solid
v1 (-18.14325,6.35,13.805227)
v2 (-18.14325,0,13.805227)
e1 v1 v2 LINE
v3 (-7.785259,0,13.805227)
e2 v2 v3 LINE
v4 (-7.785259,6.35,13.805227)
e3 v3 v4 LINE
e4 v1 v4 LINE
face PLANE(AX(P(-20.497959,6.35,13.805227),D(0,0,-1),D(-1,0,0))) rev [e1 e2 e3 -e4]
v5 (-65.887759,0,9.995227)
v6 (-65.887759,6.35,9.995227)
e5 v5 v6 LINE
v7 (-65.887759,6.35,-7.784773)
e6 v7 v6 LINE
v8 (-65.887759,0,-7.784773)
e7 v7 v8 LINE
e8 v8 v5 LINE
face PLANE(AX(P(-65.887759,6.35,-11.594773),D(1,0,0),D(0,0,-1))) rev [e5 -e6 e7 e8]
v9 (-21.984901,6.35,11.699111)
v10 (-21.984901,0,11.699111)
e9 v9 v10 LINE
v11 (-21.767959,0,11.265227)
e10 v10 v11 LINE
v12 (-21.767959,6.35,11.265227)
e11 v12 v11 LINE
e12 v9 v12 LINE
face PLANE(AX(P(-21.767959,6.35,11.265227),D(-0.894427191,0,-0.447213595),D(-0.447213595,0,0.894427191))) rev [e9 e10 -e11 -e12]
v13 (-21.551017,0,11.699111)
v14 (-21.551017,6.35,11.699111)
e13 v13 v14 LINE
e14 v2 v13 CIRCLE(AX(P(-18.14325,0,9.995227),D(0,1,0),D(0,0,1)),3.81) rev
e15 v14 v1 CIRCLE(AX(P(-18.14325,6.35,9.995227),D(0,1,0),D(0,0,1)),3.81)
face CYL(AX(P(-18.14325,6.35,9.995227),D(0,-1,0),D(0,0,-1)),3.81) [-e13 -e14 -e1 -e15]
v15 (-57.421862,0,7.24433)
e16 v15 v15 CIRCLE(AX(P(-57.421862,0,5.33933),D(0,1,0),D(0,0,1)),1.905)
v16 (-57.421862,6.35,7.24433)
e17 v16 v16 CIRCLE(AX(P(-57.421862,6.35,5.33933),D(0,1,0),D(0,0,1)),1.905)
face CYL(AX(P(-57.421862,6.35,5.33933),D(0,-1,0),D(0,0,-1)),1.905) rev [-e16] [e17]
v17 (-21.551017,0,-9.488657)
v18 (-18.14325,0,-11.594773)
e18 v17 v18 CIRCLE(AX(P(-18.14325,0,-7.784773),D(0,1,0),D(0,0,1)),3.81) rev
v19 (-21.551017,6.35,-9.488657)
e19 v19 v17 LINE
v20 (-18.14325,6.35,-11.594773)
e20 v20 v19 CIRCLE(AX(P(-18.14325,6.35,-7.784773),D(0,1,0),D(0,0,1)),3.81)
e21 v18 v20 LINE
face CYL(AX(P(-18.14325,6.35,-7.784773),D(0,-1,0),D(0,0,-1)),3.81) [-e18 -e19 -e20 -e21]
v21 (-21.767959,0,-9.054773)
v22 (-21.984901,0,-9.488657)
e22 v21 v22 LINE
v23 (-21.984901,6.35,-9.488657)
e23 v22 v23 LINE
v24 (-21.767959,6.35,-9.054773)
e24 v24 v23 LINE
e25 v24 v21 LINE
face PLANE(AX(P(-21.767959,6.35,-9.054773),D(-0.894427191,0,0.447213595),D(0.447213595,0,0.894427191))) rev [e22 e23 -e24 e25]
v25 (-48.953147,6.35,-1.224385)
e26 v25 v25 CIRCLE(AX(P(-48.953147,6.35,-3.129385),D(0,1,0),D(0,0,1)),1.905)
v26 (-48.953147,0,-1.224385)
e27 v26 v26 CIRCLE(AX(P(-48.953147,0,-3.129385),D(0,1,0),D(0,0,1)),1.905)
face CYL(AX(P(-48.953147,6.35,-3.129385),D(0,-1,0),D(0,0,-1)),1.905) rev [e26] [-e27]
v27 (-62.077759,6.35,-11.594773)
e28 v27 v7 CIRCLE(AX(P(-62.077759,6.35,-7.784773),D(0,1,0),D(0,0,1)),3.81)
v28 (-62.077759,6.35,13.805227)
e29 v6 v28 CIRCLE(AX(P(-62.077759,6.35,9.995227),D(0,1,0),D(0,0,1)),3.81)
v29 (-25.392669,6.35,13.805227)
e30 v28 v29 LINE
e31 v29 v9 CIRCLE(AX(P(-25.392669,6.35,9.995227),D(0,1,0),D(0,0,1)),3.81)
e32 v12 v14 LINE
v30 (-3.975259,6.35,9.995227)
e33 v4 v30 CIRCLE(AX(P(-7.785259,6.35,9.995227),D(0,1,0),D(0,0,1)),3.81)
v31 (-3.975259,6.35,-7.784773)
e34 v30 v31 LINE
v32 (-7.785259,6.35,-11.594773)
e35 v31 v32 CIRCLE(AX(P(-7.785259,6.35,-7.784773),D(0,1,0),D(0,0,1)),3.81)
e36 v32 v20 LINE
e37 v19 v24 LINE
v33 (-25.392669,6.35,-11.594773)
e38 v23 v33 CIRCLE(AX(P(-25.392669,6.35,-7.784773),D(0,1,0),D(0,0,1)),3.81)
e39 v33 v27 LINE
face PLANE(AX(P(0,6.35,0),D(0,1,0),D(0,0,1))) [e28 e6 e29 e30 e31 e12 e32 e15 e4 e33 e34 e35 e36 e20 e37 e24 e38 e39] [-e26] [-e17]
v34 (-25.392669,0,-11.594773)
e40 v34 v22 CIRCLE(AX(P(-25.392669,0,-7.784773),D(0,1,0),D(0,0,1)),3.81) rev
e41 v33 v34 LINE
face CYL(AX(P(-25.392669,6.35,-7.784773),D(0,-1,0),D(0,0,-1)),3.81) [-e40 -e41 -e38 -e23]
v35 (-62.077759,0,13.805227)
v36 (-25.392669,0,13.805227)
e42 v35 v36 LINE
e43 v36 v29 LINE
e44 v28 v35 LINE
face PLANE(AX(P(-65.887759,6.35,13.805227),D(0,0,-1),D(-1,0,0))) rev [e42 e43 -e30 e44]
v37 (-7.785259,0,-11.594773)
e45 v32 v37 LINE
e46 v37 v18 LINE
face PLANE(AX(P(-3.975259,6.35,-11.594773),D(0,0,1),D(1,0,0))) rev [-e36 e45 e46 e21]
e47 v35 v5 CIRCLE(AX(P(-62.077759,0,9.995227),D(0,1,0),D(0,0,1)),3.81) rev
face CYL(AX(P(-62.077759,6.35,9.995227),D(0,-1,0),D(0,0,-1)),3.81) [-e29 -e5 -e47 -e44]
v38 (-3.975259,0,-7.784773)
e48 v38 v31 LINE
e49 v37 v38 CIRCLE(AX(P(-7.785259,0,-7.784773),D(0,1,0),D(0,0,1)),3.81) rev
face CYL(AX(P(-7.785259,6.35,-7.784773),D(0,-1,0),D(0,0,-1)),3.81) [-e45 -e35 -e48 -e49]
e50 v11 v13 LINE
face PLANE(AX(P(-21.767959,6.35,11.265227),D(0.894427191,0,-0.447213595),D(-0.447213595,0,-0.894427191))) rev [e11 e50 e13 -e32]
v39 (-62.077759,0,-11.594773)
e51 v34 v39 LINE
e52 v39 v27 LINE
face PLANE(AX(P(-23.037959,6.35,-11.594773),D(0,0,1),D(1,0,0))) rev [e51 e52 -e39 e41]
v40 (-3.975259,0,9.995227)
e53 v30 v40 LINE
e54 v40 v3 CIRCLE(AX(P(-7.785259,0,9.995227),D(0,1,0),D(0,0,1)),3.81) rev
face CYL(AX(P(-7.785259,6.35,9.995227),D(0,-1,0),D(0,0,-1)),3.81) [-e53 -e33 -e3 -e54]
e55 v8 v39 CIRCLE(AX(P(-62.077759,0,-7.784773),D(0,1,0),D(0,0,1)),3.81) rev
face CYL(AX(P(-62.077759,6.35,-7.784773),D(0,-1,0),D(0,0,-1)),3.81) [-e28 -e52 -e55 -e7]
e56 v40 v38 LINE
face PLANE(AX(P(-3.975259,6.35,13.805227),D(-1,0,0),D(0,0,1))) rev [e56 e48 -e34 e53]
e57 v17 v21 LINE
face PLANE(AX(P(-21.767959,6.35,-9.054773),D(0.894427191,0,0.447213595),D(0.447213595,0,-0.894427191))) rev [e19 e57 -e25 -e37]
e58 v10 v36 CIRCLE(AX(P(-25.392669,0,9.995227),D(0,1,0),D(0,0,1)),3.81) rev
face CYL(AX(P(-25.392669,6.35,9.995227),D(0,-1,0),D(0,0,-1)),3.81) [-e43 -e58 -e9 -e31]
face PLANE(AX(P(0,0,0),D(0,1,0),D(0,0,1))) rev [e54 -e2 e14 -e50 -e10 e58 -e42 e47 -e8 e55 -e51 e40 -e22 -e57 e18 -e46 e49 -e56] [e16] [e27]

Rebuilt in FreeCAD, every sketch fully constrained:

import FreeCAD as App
import Part
import Sketcher

V = App.Vector
Q = App.Units.Quantity


def edges_at(feature, points):
    """Names of the edges that pass closest to the given points."""
    edges = feature.Shape.Edges
    near = lambda p: min(range(len(edges)), key=lambda i: edges[i].distToShape(Part.Vertex(*p))[0])
    return sorted({f"Edge{near(p) + 1}" for p in points})

doc = App.newDocument("Part")
body = doc.addObject("PartDesign::Body", "Body")

# Sketch on XZ plane
sketch1 = doc.addObject("Sketcher::SketchObject", "Sketch")
body.addObject(sketch1)
sketch1.AttachmentSupport = (doc.XZ_Plane, [""])
sketch1.MapMode = "FlatFace"
sketch1.addGeometry([
    Part.LineSegment(V(-65.887759, -11.594773, 0), V(-65.887759, 13.805227, 0)),  # 0
    Part.LineSegment(V(-65.887759, 13.805227, 0), V(-23.037959, 13.805227, 0)),  # 1
    Part.LineSegment(V(-23.037959, 13.805227, 0), V(-21.767959, 11.265227, 0)),  # 2
    Part.LineSegment(V(-21.767959, 11.265227, 0), V(-20.497959, 13.805227, 0)),  # 3
    Part.LineSegment(V(-20.497959, 13.805227, 0), V(-3.975259, 13.805227, 0)),  # 4
    Part.LineSegment(V(-3.975259, 13.805227, 0), V(-3.975259, -11.594773, 0)),  # 5
    Part.LineSegment(V(-3.975259, -11.594773, 0), V(-20.497959, -11.594773, 0)),  # 6
    Part.LineSegment(V(-20.497959, -11.594773, 0), V(-21.767959, -9.054773, 0)),  # 7
    Part.LineSegment(V(-21.767959, -9.054773, 0), V(-23.037959, -11.594773, 0)),  # 8
    Part.LineSegment(V(-23.037959, -11.594773, 0), V(-65.887759, -11.594773, 0)),  # 9
    Part.Circle(V(-57.421862, 5.33933, 0), V(0, 0, 1), 1.905),  # 10
    Part.Circle(V(-48.953147, -3.129385, 0), V(0, 0, 1), 1.905),  # 11
], False)
sketch1.addConstraint([
    Sketcher.Constraint("Coincident", 0, 2, 1, 1),
    Sketcher.Constraint("Coincident", 1, 2, 2, 1),
    Sketcher.Constraint("Coincident", 2, 2, 3, 1),
    Sketcher.Constraint("Coincident", 3, 2, 4, 1),
    Sketcher.Constraint("Coincident", 4, 2, 5, 1),
    Sketcher.Constraint("Coincident", 5, 2, 6, 1),
    Sketcher.Constraint("Coincident", 6, 2, 7, 1),
    Sketcher.Constraint("Coincident", 7, 2, 8, 1),
    Sketcher.Constraint("Coincident", 8, 2, 9, 1),
    Sketcher.Constraint("Coincident", 9, 2, 0, 1),
    Sketcher.Constraint("Vertical", 0),
    Sketcher.Constraint("Horizontal", 1),
    Sketcher.Constraint("Horizontal", 4),
    Sketcher.Constraint("Vertical", 5),
    Sketcher.Constraint("Horizontal", 6),
    Sketcher.Constraint("Horizontal", 9),
    Sketcher.Constraint("Equal", 10, 11),
    Sketcher.Constraint("Parallel", 2, 7),
    Sketcher.Constraint("Parallel", 3, 8),
    Sketcher.Constraint("Horizontal", 1, 2, 3, 2),
    Sketcher.Constraint("Horizontal", 6, 2, 8, 2),
    Sketcher.Constraint("Vertical", 3, 2, 6, 2),
    Sketcher.Constraint("Vertical", 2, 2, 7, 2),
    Sketcher.Constraint("Vertical", 1, 2, 8, 2),
    Sketcher.Constraint("Diameter", 10, Q("0.15 in")),
    Sketcher.Constraint("DistanceY", 0, 1, 0, 2, Q("1 in")),
    Sketcher.Constraint("DistanceY", 2, 2, 1, 2, Q("0.1 in")),
    Sketcher.Constraint("DistanceX", 1, 2, 3, 2, Q("0.1 in")),
    Sketcher.Constraint("DistanceX", 1, 1, 1, 2, Q("1.687 in")),
    Sketcher.Constraint("DistanceX", 4, 1, 4, 2, Q("0.6505 in")),
    Sketcher.Constraint("DistanceY", -1, 1, 10, 3, 5.33933),
    Sketcher.Constraint("DistanceX", 0, 2, -1, 1, 65.887759),
    Sketcher.Constraint("DistanceX", 0, 2, 11, 3, 16.934612),
    Sketcher.Constraint("DistanceY", 11, 3, 0, 2, 16.934612),
    Sketcher.Constraint("DistanceX", 10, 3, -1, 1, 57.421862),
    Sketcher.Constraint("DistanceY", 11, 3, -1, 1, 3.129385),
])
pad1 = doc.addObject("PartDesign::Pad", "Pad")
body.addObject(pad1)
pad1.Profile = sketch1
pad1.Length = Q("0.25 in")
pad1.Reversed = True
doc.recompute()

fillet = doc.addObject("PartDesign::Fillet", "Fillet")
body.addObject(fillet)
fillet.Base = (pad1, edges_at(pad1, [
    (-23.038, 3.175, -11.595),
    (-20.498, 3.175, -11.595),
    (-3.975, 3.175, -11.595),
    (-3.975, 3.175, 13.805),
    (-20.498, 3.175, 13.805),
    (-23.038, 3.175, 13.805),
    (-65.888, 3.175, 13.805),
    (-65.888, 3.175, -11.595),
]))
fillet.Radius = Q("0.15 in")

doc.recompute()
